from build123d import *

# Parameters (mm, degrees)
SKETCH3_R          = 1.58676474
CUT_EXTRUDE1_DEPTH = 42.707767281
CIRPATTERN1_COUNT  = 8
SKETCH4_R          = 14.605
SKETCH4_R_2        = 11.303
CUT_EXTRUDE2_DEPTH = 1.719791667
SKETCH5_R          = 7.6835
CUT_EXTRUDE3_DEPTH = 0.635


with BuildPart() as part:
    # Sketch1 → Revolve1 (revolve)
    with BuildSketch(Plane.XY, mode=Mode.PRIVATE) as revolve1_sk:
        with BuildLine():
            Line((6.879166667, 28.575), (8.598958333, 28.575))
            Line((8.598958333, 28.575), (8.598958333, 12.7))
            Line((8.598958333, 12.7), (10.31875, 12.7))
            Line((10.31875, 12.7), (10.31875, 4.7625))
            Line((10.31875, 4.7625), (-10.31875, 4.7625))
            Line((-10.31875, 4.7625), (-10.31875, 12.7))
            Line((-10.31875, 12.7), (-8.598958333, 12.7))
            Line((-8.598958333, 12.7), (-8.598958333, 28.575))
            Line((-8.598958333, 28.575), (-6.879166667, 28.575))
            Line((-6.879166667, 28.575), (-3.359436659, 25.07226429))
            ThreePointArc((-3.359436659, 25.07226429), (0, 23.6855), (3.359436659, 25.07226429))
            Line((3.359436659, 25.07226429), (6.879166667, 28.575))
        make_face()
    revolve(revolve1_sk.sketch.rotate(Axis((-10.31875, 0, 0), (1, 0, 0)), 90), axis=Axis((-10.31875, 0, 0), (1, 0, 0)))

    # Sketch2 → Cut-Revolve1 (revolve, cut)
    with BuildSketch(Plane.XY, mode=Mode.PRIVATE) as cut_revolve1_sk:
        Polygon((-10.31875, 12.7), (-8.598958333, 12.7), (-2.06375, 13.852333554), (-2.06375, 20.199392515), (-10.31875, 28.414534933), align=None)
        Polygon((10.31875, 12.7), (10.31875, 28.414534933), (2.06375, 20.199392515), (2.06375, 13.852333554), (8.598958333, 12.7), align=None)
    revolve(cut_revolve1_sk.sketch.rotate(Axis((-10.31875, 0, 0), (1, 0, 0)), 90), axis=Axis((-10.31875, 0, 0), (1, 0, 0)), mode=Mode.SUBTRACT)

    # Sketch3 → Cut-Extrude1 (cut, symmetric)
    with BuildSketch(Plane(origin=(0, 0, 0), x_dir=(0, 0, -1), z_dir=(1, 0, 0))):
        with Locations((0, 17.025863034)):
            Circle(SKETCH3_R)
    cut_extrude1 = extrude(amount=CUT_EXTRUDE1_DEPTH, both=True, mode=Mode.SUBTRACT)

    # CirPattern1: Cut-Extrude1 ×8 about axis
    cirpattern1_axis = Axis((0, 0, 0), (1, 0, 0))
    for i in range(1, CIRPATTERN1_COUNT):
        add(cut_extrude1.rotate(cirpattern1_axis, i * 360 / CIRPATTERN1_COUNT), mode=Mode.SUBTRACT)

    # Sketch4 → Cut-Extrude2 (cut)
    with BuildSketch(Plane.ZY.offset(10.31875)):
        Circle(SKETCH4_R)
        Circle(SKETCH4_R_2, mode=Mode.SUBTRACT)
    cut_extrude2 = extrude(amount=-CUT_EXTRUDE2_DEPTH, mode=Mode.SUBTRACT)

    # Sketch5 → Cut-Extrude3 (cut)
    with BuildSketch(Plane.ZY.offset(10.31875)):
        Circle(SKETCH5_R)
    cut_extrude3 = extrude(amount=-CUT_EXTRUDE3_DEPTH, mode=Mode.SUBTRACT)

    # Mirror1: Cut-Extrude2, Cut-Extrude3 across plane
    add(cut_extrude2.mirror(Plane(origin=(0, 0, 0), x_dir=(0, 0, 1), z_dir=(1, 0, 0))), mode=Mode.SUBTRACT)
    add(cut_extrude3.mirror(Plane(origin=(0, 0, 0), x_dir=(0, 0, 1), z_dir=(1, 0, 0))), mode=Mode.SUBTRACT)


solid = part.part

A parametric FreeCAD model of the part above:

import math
import FreeCAD as App
import Part
import Sketcher
Q = App.Units.Quantity


def add_polygon(sketch, points):
    """Adds a closed chain of lines whose ends are joined by coincident constraints."""
    first, n = sketch.GeometryCount, len(points)
    for a, b in zip(points, points[1:] + points[:1]):
        sketch.addGeometry(Part.LineSegment(App.Vector(*a, 0), App.Vector(*b, 0)), False)
    for i in range(n):
        sketch.addConstraint(Sketcher.Constraint("Coincident", first + i, 2, first + (i + 1) % n, 1))

doc = App.newDocument("Part")
body = doc.addObject("PartDesign::Body", "Body")

# Sketch on XY plane
sketch1 = body.newObject("Sketcher::SketchObject", "Sketch")
sketch1.AttachmentSupport = (doc.getObject("XY_Plane"), [""])
sketch1.MapMode = "FlatFace"
sketch1.addGeometry(Part.LineSegment(App.Vector(8.6, 28.6, 0), App.Vector(6.9, 28.6, 0)), False)
sketch1.addGeometry(Part.LineSegment(App.Vector(6.9, 28.6, 0), App.Vector(3.4, 25.1, 0)), False)
sketch1.addGeometry(Part.ArcOfCircle(Part.Circle(App.Vector(0, 28.4, 0), App.Vector(0, 0, 1), 4.8), math.radians(-135), math.radians(-45)), False)
sketch1.addGeometry(Part.LineSegment(App.Vector(-3.4, 25.1, 0), App.Vector(-6.9, 28.6, 0)), False)
sketch1.addGeometry(Part.LineSegment(App.Vector(-6.9, 28.6, 0), App.Vector(-8.6, 28.6, 0)), False)
sketch1.addGeometry(Part.LineSegment(App.Vector(-8.6, 28.6, 0), App.Vector(-8.6, 12.7, 0)), False)
sketch1.addGeometry(Part.LineSegment(App.Vector(-8.6, 12.7, 0), App.Vector(-10.3, 12.7, 0)), False)
sketch1.addGeometry(Part.LineSegment(App.Vector(-10.3, 12.7, 0), App.Vector(-10.3, 4.8, 0)), False)
sketch1.addGeometry(Part.LineSegment(App.Vector(-10.3, 4.8, 0), App.Vector(10.3, 4.8, 0)), False)
sketch1.addGeometry(Part.LineSegment(App.Vector(10.3, 4.8, 0), App.Vector(10.3, 12.7, 0)), False)
sketch1.addGeometry(Part.LineSegment(App.Vector(10.3, 12.7, 0), App.Vector(8.6, 12.7, 0)), False)
sketch1.addGeometry(Part.LineSegment(App.Vector(8.6, 12.7, 0), App.Vector(8.6, 28.6, 0)), False)
sketch1.addConstraint(Sketcher.Constraint("Coincident", 0, 2, 1, 1))
sketch1.addConstraint(Sketcher.Constraint("Tangent", 1, 2, 2, 2))
sketch1.addConstraint(Sketcher.Constraint("Tangent", 2, 1, 3, 1))
sketch1.addConstraint(Sketcher.Constraint("Coincident", 3, 2, 4, 1))
sketch1.addConstraint(Sketcher.Constraint("Coincident", 4, 2, 5, 1))
sketch1.addConstraint(Sketcher.Constraint("Coincident", 5, 2, 6, 1))
sketch1.addConstraint(Sketcher.Constraint("Coincident", 6, 2, 7, 1))
sketch1.addConstraint(Sketcher.Constraint("Coincident", 7, 2, 8, 1))
sketch1.addConstraint(Sketcher.Constraint("Coincident", 8, 2, 9, 1))
sketch1.addConstraint(Sketcher.Constraint("Coincident", 9, 2, 10, 1))
sketch1.addConstraint(Sketcher.Constraint("Coincident", 10, 2, 11, 1))
sketch1.addConstraint(Sketcher.Constraint("Coincident", 11, 2, 0, 1))
sketch1.addConstraint(Sketcher.Constraint("Horizontal", 0))
sketch1.addConstraint(Sketcher.Constraint("Horizontal", 4))
sketch1.addConstraint(Sketcher.Constraint("Vertical", 5))
sketch1.addConstraint(Sketcher.Constraint("Horizontal", 6))
sketch1.addConstraint(Sketcher.Constraint("Vertical", 7))
sketch1.addConstraint(Sketcher.Constraint("Horizontal", 8))
sketch1.addConstraint(Sketcher.Constraint("Vertical", 9))
sketch1.addConstraint(Sketcher.Constraint("Horizontal", 10))
sketch1.addConstraint(Sketcher.Constraint("Vertical", 11))
sketch1.addConstraint(Sketcher.Constraint("Symmetric", 1, 2, 2, 1, -2))
sketch1.addConstraint(Sketcher.Constraint("Symmetric", 6, 2, 9, 2, -2))
sketch1.addConstraint(Sketcher.Constraint("Symmetric", 4, 2, 11, 2, -2))
sketch1.addConstraint(Sketcher.Constraint("Equal", 4, 6))
sketch1.addConstraint(Sketcher.Constraint("Radius", 2, Q("0.1875 in")))
sketch1.addConstraint(Sketcher.Constraint("DistanceY", -1, 1, 5, 2, Q("0.5 in")))
sketch1.addConstraint(Sketcher.Constraint("DistanceX", 8, 1, 8, 2, Q("0.8125 in")))
sketch1.addConstraint(Sketcher.Constraint("DistanceY", 5, 2, 5, 1, Q("0.625 in")))
sketch1.addConstraint(Sketcher.Constraint("DistanceY", 7, 2, 7, 1, Q("0.3125 in")))
sketch1.addConstraint(Sketcher.Constraint("DistanceY", -1, 1, 2, 3, Q("1.12 in")))
sketch1.addConstraint(Sketcher.Constraint("DistanceX", 4, 2, 0, 2, Q("0.609375 in")))
revolution = body.newObject("PartDesign::Revolution", "Revolution")
revolution.Profile = sketch1
revolution.ReferenceAxis = (sketch1, ["H_Axis"])
revolution.Angle = 360

# Sketch on XY plane
sketch2 = body.newObject("Sketcher::SketchObject", "Sketch001")
sketch2.AttachmentSupport = (doc.getObject("XY_Plane"), [""])
sketch2.MapMode = "FlatFace"
add_polygon(sketch2, [(-10.3, 12.7), (-8.6, 12.7), (-2.1, 13.9), (-2.1, 20.2), (-10.3, 28.4)])  # lines 0-4
add_polygon(sketch2, [(10.3, 12.7), (10.3, 28.4), (2.1, 20.2), (2.1, 13.9), (8.6, 12.7)])  # lines 5-9
sketch2.addConstraint(Sketcher.Constraint("Horizontal", 0))
sketch2.addConstraint(Sketcher.Constraint("Vertical", 2))
sketch2.addConstraint(Sketcher.Constraint("Vertical", 4))
sketch2.addConstraint(Sketcher.Constraint("Vertical", 5))
sketch2.addConstraint(Sketcher.Constraint("Vertical", 7))
sketch2.addConstraint(Sketcher.Constraint("Horizontal", 9))
sketch2.addConstraint(Sketcher.Constraint("Symmetric", 3, 2, 5, 2, -2))
sketch2.addConstraint(Sketcher.Constraint("Symmetric", 2, 2, 6, 2, -2))
sketch2.addConstraint(Sketcher.Constraint("Symmetric", 0, 2, 8, 2, -2))
sketch2.addConstraint(Sketcher.Constraint("Horizontal", 1, 2, 7, 2))
sketch2.addConstraint(Sketcher.Constraint("Angle", 1, Q("10 deg")))
sketch2.addConstraint(Sketcher.Constraint("DistanceY", -1, 1, 0, 2, Q("0.5 in")))
sketch2.addConstraint(Sketcher.Constraint("DistanceX", 3, 2, -1, 1, Q("0.40625 in")))
sketch2.addConstraint(Sketcher.Constraint("DistanceX", 3, 2, 2, 2, Q("0.325 in")))
sketch2.addConstraint(Sketcher.Constraint("DistanceX", 0, 1, 0, 2, 1.719792))
sketch2.addConstraint(Sketcher.Constraint("DistanceY", 2, 1, 2, 2, 6.347059))
sketch2.addConstraint(Sketcher.Constraint("DistanceY", 1, 2, 3, 2, 14.562201))
groove = body.newObject("PartDesign::Groove", "Groove")
groove.Profile = sketch2
groove.ReferenceAxis = (sketch2, ["H_Axis"])
groove.Angle = 360

# Sketch on YZ plane
sketch3 = body.newObject("Sketcher::SketchObject", "Sketch002")
sketch3.AttachmentSupport = (doc.getObject("YZ_Plane"), [""])
sketch3.MapMode = "FlatFace"
sketch3.addGeometry(Part.Circle(App.Vector(17, 0, 0), App.Vector(0, 0, 1), 1.6), False)
sketch3.addConstraint(Sketcher.Constraint("PointOnObject", 0, 3, -1))
sketch3.addConstraint(Sketcher.Constraint("Diameter", 0, 3.173529))
sketch3.addConstraint(Sketcher.Constraint("DistanceX", -1, 1, 0, 3, 17.025863))
pocket1 = body.newObject("PartDesign::Pocket", "Pocket")
pocket1.Profile = sketch3
pocket1.Length = 85.415535
pocket1.Midplane = True
doc.recompute()

polarpattern = body.newObject("PartDesign::PolarPattern", "PolarPattern")
polarpattern.Originals = [pocket1]
polarpattern.Axis = (doc.getObject("X_Axis"), [""])
polarpattern.Angle = 360
polarpattern.Occurrences = 8
body.Tip = polarpattern

# Sketch on YZ plane
sketch4 = body.newObject("Sketcher::SketchObject", "Sketch003")
sketch4.AttachmentSupport = (doc.getObject("YZ_Plane"), [""])
sketch4.MapMode = "FlatFace"
sketch4.AttachmentOffset = App.Placement(App.Vector(0, 0, -0.40625 * 25.4), App.Rotation())
sketch4.addGeometry(Part.Circle(App.Vector(0, 0, 0), App.Vector(0, 0, 1), 15), False)
sketch4.addGeometry(Part.Circle(App.Vector(0, 0, 0), App.Vector(0, 0, 1), 11), False)
sketch4.addConstraint(Sketcher.Constraint("Coincident", 0, 3, -1, 1))
sketch4.addConstraint(Sketcher.Constraint("Coincident", 1, 3, -1, 1))
sketch4.addConstraint(Sketcher.Constraint("Diameter", 0, Q("1.15 in")))
sketch4.addConstraint(Sketcher.Constraint("Diameter", 1, Q("0.89 in")))
pocket2 = body.newObject("PartDesign::Pocket", "Pocket001")
pocket2.Profile = sketch4
pocket2.Length = 1.719792
pocket2.Reversed = True

# Sketch on YZ plane
sketch5 = body.newObject("Sketcher::SketchObject", "Sketch004")
sketch5.AttachmentSupport = (doc.getObject("YZ_Plane"), [""])
sketch5.MapMode = "FlatFace"
sketch5.AttachmentOffset = App.Placement(App.Vector(0, 0, -0.40625 * 25.4), App.Rotation())
sketch5.addGeometry(Part.Circle(App.Vector(0, 0, 0), App.Vector(0, 0, 1), 8), False)
sketch5.addConstraint(Sketcher.Constraint("Coincident", 0, 3, -1, 1))
sketch5.addConstraint(Sketcher.Constraint("Diameter", 0, Q("0.605 in")))
pocket3 = body.newObject("PartDesign::Pocket", "Pocket002")
pocket3.Profile = sketch5
pocket3.Length = Q("0.025 in")
pocket3.Reversed = True
doc.recompute()

mirrored = body.newObject("PartDesign::Mirrored", "Mirrored")
mirrored.Originals = [pocket2, pocket3]
mirrored.MirrorPlane = (doc.getObject("YZ_Plane"), [""])
body.Tip = mirrored

doc.recompute()
